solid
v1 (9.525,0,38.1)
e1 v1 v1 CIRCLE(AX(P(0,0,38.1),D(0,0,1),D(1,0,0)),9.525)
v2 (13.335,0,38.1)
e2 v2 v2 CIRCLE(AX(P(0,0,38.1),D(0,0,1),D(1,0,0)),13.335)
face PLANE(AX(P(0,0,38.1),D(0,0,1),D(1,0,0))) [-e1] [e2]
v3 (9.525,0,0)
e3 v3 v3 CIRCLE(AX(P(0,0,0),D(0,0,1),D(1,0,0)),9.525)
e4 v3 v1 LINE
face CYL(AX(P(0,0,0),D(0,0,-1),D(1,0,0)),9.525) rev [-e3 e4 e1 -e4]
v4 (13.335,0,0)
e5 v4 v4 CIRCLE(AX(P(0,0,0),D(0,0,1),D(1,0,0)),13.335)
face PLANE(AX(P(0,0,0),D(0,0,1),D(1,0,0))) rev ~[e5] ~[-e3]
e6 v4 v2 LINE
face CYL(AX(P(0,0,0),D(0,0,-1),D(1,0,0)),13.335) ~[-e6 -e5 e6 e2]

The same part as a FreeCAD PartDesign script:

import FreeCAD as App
import Part
import Sketcher
Q = App.Units.Quantity

doc = App.newDocument("Part")
params = doc.addObject("Spreadsheet::Sheet", "Params")
for row, (alias, value) in enumerate([
    ("sketch1_diameter", "0.75 in"),
    ("pad1_length", "1.5 in"),
    ("sketch2_diameter", "1.05 in"),
    ("pad2_length", "1.5 in"),
], start=1):
    params.set(f"A{row}", alias)
    params.set(f"B{row}", "=" + value)
    params.setAlias(f"B{row}", alias)

body = doc.addObject("PartDesign::Body", "Body")

# Sketch on XY plane
sketch1 = body.newObject("Sketcher::SketchObject", "Sketch")
sketch1.AttachmentSupport = (doc.getObject("XY_Plane"), [""])
sketch1.MapMode = "FlatFace"
sketch1.addGeometry(Part.Circle(App.Vector(0, 0, 0), App.Vector(0, 0, 1), 10), False)
sketch1.addConstraint(Sketcher.Constraint("Coincident", 0, 3, -1, 1))
sketch1.addConstraint(Sketcher.Constraint("Diameter", 0, Q("0.75 in")))
sketch1.setExpression("Constraints[1]", "Params.sketch1_diameter")
pad1 = body.newObject("PartDesign::Pad", "Pad")
pad1.Profile = sketch1
pad1.setExpression("Length", "Params.pad1_length")
body2 = doc.addObject("PartDesign::Body", "Body001")

# Sketch on XY plane
sketch2 = body2.newObject("Sketcher::SketchObject", "Sketch001")
sketch2.AttachmentSupport = (doc.getObject("XY_Plane001"), [""])
sketch2.MapMode = "FlatFace"
sketch2.addGeometry(Part.Circle(App.Vector(0, 0, 0), App.Vector(0, 0, 1), 13), False)
sketch2.addConstraint(Sketcher.Constraint("Coincident", 0, 3, -1, 1))
sketch2.addConstraint(Sketcher.Constraint("Diameter", 0, Q("1.05 in")))
sketch2.setExpression("Constraints[1]", "Params.sketch2_diameter")
pad2 = body2.newObject("PartDesign::Pad", "Pad001")
pad2.Profile = sketch2
pad2.setExpression("Length", "Params.pad2_length")
doc.recompute()

boolean = body2.newObject("PartDesign::Boolean", "Boolean")
boolean.Type = "Cut"
boolean.addObjects([body])

doc.recompute()
